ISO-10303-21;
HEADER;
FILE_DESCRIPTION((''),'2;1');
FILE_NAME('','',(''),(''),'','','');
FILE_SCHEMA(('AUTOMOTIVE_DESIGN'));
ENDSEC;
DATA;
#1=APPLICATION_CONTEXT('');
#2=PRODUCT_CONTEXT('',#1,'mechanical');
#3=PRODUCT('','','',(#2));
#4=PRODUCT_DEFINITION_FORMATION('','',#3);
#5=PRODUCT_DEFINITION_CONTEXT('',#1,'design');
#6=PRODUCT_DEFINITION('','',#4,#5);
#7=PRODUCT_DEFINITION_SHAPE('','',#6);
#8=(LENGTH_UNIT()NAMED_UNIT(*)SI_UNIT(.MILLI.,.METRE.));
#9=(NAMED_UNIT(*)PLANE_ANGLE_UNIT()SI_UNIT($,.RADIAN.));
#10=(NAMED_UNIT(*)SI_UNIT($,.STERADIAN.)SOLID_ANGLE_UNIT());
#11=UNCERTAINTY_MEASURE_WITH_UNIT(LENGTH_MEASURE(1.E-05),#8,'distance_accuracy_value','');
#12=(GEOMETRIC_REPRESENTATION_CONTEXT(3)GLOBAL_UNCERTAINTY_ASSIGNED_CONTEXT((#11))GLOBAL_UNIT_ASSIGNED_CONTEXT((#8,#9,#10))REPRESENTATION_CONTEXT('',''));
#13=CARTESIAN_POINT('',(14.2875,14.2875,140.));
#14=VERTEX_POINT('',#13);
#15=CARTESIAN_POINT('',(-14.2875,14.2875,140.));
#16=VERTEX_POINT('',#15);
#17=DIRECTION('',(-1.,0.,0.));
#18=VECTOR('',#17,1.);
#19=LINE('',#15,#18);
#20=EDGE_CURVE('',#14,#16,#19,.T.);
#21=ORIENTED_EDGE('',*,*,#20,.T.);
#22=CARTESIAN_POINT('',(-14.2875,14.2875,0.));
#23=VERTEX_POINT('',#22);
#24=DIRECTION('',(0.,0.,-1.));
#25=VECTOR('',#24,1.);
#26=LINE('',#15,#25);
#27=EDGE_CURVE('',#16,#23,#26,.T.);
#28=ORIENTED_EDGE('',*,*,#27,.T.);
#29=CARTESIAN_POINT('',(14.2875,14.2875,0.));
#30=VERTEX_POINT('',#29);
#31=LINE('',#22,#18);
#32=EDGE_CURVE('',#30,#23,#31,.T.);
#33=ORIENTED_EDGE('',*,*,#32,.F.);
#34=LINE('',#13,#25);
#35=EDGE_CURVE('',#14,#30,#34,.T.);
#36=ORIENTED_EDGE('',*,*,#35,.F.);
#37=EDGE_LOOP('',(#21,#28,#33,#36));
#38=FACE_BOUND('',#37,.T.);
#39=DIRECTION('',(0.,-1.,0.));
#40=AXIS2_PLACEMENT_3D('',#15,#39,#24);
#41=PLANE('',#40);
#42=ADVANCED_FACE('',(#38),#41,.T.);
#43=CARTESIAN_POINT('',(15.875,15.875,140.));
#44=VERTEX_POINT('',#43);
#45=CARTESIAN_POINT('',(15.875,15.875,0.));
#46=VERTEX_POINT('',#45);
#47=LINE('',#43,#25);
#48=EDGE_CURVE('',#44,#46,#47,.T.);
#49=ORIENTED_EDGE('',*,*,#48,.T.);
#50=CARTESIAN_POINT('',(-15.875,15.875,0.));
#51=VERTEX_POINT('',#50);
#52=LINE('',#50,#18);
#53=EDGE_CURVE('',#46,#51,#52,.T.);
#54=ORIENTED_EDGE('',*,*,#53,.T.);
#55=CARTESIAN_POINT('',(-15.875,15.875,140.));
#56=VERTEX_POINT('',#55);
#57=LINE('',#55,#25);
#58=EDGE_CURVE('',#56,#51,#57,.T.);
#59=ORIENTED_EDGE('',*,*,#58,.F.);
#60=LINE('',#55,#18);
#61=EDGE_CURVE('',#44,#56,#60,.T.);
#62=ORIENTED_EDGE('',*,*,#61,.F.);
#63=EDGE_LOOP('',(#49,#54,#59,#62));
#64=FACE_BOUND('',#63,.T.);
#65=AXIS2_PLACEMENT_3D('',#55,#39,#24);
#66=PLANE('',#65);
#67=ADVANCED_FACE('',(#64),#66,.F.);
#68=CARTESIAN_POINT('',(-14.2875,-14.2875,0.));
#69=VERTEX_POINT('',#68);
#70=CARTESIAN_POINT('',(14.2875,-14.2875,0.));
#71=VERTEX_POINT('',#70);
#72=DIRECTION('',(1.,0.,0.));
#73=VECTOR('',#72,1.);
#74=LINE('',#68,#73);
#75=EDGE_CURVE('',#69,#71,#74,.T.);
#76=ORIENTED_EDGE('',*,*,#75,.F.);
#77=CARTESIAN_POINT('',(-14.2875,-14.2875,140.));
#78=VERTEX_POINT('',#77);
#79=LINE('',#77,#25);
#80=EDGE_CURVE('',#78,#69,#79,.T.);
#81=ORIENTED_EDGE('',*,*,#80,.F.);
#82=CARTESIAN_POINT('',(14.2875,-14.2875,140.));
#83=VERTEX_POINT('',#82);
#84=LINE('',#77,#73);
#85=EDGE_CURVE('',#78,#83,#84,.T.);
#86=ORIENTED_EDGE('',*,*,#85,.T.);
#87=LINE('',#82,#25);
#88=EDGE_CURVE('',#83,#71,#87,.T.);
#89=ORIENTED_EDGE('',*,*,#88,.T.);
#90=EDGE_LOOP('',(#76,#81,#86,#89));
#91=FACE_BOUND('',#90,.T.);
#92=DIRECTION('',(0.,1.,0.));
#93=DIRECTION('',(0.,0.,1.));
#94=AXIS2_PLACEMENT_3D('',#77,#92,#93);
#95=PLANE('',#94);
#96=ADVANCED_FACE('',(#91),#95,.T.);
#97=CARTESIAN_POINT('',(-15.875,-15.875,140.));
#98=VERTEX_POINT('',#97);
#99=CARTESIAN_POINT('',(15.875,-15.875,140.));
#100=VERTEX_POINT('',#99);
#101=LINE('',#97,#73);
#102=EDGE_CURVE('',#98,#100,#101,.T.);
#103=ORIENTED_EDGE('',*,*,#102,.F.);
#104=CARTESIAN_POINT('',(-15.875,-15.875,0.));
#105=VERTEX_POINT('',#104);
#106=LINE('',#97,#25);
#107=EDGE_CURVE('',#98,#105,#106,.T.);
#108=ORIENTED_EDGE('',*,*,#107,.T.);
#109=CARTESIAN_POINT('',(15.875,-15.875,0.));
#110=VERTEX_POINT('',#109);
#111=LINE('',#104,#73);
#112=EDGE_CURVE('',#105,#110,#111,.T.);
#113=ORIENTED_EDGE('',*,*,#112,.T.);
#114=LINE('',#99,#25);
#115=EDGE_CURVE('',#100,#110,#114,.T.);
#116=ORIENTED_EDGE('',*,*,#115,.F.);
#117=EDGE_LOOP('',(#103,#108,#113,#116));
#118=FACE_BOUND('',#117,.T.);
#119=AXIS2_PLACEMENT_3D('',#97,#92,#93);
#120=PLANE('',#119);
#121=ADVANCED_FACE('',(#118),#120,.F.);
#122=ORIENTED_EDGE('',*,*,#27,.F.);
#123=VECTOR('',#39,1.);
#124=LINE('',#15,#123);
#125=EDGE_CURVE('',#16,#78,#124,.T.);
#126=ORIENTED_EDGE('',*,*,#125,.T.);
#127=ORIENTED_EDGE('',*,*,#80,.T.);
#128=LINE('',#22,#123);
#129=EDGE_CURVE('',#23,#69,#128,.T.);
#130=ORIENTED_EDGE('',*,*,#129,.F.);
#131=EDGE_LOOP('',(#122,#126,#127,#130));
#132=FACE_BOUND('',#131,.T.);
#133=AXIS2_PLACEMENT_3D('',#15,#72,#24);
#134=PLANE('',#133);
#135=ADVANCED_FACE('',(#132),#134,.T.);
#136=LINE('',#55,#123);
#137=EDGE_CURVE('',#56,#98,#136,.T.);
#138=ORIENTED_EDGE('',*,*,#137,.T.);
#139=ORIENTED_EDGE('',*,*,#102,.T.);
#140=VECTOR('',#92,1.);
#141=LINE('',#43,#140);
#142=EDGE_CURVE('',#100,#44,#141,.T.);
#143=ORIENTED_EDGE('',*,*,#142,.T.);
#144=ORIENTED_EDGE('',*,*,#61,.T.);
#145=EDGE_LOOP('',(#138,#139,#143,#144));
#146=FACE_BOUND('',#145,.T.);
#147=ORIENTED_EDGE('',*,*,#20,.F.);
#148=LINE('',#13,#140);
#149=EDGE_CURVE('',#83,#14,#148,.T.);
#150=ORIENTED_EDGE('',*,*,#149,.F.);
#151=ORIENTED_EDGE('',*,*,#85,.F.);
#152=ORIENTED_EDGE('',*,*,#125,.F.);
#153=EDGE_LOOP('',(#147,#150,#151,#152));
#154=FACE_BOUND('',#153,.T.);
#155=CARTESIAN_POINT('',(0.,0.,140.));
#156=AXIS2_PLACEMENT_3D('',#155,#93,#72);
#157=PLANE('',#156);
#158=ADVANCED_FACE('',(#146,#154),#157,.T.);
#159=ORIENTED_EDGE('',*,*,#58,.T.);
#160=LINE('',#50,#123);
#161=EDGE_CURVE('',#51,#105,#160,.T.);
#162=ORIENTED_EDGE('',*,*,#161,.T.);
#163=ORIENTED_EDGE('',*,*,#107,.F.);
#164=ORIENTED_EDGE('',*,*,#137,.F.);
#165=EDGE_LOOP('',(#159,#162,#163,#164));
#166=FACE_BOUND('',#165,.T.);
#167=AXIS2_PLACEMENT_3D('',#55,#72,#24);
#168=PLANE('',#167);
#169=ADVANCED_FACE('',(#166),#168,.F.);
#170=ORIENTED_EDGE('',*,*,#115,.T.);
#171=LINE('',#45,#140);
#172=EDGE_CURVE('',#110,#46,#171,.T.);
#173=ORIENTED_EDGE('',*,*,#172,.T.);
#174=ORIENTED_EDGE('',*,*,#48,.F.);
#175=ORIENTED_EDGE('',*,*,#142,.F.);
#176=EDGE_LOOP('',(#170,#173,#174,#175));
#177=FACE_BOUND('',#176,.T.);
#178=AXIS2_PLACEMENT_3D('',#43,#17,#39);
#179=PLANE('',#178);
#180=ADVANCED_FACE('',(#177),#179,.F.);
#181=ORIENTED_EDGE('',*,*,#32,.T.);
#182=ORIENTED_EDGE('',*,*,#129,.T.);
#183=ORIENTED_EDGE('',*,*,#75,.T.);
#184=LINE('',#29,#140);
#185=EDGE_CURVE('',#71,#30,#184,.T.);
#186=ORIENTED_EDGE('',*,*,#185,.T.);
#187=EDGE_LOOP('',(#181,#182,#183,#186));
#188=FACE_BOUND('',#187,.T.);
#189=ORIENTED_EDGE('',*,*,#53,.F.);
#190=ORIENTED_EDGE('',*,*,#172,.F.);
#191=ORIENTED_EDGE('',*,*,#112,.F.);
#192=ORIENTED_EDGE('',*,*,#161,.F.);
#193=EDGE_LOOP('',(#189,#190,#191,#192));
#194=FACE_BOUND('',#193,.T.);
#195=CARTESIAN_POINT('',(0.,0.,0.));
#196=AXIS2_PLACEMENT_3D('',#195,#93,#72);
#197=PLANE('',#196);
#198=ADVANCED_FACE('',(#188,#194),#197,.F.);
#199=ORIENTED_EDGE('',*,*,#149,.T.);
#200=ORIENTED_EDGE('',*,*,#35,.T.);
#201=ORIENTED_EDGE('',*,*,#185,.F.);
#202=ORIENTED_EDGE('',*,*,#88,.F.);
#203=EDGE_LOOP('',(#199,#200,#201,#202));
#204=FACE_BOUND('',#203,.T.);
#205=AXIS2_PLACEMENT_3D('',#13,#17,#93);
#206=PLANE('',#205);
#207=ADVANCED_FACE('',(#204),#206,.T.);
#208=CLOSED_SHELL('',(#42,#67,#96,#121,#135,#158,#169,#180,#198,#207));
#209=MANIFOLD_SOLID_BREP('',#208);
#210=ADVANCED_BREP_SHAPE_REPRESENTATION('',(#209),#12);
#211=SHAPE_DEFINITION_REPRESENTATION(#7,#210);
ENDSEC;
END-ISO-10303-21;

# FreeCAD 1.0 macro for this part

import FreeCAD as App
import Part
import Sketcher
Q = App.Units.Quantity


def add_polygon(sketch, points):
    """Adds a closed chain of lines whose ends are joined by coincident constraints."""
    first, n = sketch.GeometryCount, len(points)
    for a, b in zip(points, points[1:] + points[:1]):
        sketch.addGeometry(Part.LineSegment(App.Vector(*a, 0), App.Vector(*b, 0)), False)
    for i in range(n):
        sketch.addConstraint(Sketcher.Constraint("Coincident", first + i, 2, first + (i + 1) % n, 1))

doc = App.newDocument("Part")
body = doc.addObject("PartDesign::Body", "Body")

# Sketch on XY plane
sketch1 = body.newObject("Sketcher::SketchObject", "Sketch")
sketch1.AttachmentSupport = (doc.getObject("XY_Plane"), [""])
sketch1.MapMode = "FlatFace"
add_polygon(sketch1, [(-16, 16), (-16, -16), (16, -16), (16, 16)])  # lines 0-3
add_polygon(sketch1, [(14, -14), (-14, -14), (-14, 14), (14, 14)])  # lines 4-7
sketch1.addConstraint([
    Sketcher.Constraint("Vertical", 0),
    Sketcher.Constraint("Horizontal", 1),
    Sketcher.Constraint("Vertical", 2),
    Sketcher.Constraint("Horizontal", 3),
    Sketcher.Constraint("Horizontal", 4),
    Sketcher.Constraint("Vertical", 5),
    Sketcher.Constraint("Horizontal", 6),
    Sketcher.Constraint("Vertical", 7),
    Sketcher.Constraint("Symmetric", 0, 2, 2, 2, -1, 1),
    Sketcher.Constraint("Symmetric", 4, 2, 6, 2, -1, 1),
    Sketcher.Constraint("Equal", 3, 0),
    Sketcher.Constraint("Equal", 6, 5),
    Sketcher.Constraint("DistanceX", 1, 1, 1, 2, Q("1.25 in")),
    Sketcher.Constraint("DistanceX", 4, 2, 4, 1, Q("1.125 in")),
])
pad1 = body.newObject("PartDesign::Pad", "Pad")
pad1.Profile = sketch1
pad1.Length = 140

doc.recompute()
